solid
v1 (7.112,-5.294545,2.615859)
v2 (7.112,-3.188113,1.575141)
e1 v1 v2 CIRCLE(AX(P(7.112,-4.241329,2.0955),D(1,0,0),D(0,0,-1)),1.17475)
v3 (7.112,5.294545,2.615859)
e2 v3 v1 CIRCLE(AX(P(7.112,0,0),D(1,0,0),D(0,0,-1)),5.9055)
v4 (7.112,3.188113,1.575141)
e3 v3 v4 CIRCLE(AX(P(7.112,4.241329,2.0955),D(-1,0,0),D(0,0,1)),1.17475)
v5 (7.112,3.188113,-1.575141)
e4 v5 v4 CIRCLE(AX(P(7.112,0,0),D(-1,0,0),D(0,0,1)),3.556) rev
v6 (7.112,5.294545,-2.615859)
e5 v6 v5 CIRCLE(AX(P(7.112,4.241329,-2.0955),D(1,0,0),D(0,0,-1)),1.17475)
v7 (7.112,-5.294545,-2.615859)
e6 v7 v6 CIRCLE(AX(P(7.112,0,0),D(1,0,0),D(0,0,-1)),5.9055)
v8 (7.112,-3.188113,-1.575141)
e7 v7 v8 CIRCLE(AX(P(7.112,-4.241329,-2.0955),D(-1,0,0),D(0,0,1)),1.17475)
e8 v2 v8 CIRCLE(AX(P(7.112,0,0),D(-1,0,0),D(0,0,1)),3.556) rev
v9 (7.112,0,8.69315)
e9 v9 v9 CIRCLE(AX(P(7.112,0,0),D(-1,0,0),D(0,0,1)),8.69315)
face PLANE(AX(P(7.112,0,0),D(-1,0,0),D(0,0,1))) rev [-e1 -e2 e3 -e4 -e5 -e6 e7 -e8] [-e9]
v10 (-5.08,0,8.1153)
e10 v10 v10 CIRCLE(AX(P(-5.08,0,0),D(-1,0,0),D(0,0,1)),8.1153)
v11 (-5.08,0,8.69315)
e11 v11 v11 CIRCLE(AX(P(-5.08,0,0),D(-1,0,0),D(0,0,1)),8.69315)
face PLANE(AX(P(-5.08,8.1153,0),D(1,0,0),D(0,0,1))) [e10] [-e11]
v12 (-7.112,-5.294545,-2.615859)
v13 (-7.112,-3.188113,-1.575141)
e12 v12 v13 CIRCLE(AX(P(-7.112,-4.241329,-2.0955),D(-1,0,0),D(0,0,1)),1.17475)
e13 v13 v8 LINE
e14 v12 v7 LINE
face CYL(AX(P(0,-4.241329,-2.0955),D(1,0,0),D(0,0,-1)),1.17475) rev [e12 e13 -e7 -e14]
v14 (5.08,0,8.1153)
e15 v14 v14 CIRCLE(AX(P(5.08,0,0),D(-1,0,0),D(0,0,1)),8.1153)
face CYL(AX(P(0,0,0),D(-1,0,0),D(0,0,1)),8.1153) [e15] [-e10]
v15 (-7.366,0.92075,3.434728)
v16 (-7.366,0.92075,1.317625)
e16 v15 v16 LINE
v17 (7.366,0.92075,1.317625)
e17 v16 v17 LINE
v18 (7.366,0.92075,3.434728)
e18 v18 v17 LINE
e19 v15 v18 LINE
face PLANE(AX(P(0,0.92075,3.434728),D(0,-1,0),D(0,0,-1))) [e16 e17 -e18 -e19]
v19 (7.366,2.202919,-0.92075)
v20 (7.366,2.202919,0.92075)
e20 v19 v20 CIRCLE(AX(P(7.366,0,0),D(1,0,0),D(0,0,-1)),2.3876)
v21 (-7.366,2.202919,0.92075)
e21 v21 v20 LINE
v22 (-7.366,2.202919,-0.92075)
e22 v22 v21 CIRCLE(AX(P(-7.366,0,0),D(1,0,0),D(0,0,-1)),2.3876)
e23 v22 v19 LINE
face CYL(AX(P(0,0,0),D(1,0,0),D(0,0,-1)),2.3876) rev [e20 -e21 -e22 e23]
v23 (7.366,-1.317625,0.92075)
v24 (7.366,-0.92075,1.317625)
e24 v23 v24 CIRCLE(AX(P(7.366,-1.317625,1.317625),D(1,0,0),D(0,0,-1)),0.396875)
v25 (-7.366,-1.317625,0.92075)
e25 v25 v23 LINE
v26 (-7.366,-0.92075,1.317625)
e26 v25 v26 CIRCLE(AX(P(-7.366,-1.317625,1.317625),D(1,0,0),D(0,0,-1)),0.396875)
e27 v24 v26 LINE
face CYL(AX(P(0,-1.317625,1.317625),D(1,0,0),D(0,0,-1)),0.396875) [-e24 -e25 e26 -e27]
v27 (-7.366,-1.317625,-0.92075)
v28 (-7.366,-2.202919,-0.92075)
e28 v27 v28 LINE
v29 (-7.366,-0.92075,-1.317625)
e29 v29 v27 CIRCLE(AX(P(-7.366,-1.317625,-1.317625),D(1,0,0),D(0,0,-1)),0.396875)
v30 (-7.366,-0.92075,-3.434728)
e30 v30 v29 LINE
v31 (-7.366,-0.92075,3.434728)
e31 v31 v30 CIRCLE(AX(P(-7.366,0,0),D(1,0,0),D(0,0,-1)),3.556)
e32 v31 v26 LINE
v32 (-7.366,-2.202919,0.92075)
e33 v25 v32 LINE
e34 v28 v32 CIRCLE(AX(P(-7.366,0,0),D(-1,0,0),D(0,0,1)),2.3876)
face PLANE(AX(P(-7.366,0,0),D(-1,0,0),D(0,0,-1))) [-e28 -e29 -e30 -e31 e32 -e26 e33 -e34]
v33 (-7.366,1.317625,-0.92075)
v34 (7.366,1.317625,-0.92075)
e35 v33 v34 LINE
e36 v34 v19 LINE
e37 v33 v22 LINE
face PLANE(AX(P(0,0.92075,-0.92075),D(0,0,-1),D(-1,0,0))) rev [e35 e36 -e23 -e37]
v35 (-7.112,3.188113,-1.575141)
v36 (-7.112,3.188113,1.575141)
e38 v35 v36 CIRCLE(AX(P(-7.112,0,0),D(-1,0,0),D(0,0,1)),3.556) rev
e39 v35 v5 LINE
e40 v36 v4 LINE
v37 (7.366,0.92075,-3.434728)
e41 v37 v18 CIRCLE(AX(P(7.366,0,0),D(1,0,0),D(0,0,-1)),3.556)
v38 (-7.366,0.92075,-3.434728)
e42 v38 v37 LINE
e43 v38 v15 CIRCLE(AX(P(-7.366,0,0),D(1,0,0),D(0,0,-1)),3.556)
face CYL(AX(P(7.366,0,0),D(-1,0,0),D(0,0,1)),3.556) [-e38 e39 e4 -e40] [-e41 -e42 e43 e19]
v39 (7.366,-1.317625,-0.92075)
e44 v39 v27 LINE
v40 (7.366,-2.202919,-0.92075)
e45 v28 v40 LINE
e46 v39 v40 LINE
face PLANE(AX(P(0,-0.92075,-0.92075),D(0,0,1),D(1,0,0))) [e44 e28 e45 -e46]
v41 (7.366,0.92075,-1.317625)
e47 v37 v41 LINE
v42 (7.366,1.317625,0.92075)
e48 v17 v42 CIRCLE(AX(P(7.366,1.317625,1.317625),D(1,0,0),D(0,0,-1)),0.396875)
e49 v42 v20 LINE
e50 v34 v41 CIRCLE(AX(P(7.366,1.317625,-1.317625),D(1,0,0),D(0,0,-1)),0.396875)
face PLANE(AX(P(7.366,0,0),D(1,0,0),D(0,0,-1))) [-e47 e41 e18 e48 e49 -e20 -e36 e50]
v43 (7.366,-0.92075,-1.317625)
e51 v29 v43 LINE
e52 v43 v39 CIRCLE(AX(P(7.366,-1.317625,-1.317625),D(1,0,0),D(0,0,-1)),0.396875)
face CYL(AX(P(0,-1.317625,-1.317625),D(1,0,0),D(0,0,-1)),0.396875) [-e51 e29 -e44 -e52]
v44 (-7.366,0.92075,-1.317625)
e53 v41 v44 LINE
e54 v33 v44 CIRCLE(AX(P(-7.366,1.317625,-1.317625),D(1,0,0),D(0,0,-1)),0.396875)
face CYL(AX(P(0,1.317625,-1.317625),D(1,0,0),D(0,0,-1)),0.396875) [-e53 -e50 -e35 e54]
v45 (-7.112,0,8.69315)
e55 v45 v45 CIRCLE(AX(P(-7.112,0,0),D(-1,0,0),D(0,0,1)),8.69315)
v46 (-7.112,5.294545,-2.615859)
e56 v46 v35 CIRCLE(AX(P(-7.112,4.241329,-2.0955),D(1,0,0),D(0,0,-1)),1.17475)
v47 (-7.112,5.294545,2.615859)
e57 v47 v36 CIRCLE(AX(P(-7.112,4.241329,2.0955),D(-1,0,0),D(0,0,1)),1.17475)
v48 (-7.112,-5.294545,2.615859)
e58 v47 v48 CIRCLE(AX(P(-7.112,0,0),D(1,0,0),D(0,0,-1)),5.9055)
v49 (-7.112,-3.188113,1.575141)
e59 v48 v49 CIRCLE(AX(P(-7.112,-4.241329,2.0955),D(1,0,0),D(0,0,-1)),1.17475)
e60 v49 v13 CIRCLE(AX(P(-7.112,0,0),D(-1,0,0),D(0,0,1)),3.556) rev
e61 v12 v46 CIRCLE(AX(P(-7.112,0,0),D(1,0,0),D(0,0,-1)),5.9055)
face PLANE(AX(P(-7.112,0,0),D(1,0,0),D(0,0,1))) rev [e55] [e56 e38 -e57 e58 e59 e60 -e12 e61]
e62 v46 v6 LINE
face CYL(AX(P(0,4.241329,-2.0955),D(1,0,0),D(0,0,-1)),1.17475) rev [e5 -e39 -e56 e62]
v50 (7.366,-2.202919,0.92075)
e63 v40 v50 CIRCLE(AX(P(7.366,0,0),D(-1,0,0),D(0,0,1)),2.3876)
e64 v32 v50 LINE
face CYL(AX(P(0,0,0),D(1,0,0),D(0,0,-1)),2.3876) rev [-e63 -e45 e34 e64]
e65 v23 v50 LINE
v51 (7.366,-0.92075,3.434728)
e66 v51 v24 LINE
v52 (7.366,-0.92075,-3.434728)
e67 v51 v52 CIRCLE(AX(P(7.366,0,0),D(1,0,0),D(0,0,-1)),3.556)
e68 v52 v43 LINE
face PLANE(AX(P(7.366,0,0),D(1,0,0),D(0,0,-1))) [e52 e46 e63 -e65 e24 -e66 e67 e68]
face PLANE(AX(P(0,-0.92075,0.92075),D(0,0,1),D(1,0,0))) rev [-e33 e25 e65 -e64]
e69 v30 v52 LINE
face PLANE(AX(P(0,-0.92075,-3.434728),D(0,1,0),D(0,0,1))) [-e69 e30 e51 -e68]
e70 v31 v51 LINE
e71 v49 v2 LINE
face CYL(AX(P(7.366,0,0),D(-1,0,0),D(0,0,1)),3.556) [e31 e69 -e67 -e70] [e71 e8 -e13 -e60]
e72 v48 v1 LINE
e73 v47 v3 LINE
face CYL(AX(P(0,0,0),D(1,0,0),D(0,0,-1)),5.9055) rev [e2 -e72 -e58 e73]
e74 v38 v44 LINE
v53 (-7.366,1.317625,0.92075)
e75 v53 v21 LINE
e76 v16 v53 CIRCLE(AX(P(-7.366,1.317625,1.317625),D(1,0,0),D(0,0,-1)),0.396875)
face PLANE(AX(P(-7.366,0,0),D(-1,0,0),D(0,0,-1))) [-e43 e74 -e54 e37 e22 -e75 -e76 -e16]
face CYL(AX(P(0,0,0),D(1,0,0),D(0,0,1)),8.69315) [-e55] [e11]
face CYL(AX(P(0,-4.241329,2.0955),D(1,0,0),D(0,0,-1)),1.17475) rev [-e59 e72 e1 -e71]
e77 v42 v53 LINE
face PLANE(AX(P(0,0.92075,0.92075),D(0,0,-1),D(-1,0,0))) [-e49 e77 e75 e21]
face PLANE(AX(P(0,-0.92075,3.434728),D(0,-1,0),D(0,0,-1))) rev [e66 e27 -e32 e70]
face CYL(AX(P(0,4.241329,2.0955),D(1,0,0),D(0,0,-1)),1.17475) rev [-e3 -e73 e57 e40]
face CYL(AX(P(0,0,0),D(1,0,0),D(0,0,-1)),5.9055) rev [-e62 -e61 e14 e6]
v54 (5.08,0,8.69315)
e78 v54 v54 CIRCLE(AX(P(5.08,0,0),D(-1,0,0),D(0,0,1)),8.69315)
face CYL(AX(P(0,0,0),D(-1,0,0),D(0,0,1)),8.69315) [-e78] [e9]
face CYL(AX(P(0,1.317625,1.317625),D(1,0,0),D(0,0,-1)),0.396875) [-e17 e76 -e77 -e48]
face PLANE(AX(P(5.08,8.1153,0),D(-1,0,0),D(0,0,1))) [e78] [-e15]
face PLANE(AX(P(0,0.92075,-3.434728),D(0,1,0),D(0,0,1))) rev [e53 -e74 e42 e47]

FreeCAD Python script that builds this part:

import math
import FreeCAD as App
import Part
import Sketcher

V = App.Vector
Q = App.Units.Quantity


def edges_at(feature, points):
    """Names of the edges that pass closest to the given points."""
    edges = feature.Shape.Edges
    near = lambda p: min(range(len(edges)), key=lambda i: edges[i].distToShape(Part.Vertex(*p))[0])
    return sorted({f"Edge{near(p) + 1}" for p in points})


def add_polygon(sketch, points):
    """Adds a closed chain of lines whose ends are joined by coincident constraints."""
    first, n = sketch.GeometryCount, len(points)
    for a, b in zip(points, points[1:] + points[:1]):
        sketch.addGeometry(Part.LineSegment(App.Vector(*a, 0), App.Vector(*b, 0)), False)
    for i in range(n):
        sketch.addConstraint(Sketcher.Constraint("Coincident", first + i, 2, first + (i + 1) % n, 1))

doc = App.newDocument("Part")
body = doc.addObject("PartDesign::Body", "Body")

# Sketch on XY plane
sketch1 = doc.addObject("Sketcher::SketchObject", "Sketch")
body.addObject(sketch1)
sketch1.AttachmentSupport = (doc.XY_Plane, [""])
sketch1.MapMode = "FlatFace"
add_polygon(sketch1, [(7.1, 0), (7.1, 8.7), (5.1, 8.7), (5.1, 8.1), (0, 8.1), (0, 0)])  # lines 0-5
sketch1.addConstraint([
    Sketcher.Constraint("Vertical", 0),
    Sketcher.Constraint("Horizontal", 1),
    Sketcher.Constraint("Vertical", 2),
    Sketcher.Constraint("Horizontal", 3),
    Sketcher.Constraint("Vertical", 4),
    Sketcher.Constraint("Horizontal", 5),
    Sketcher.Constraint("Coincident", 4, 2, -1, 1),
    Sketcher.Constraint("DistanceX", 3, 2, 3, 1, Q("0.2 in")),
    Sketcher.Constraint("DistanceX", 1, 2, 1, 1, Q("0.08 in")),
    Sketcher.Constraint("DistanceY", 4, 2, 4, 1, Q("0.3195 in")),
    Sketcher.Constraint("DistanceY", 0, 1, 0, 2, 8.69315),
])
revolution = doc.addObject("PartDesign::Revolution", "Revolution")
body.addObject(revolution)
revolution.Profile = sketch1
revolution.ReferenceAxis = (sketch1, ["H_Axis"])
revolution.Angle = 360

# Sketch on YZ plane
sketch2 = doc.addObject("Sketcher::SketchObject", "Sketch001")
body.addObject(sketch2)
sketch2.AttachmentSupport = (doc.YZ_Plane, [""])
sketch2.MapMode = "FlatFace"
sketch2.AttachmentOffset = App.Placement(V(0, 0, 0.28 * 25.4), App.Rotation())
sketch2.addGeometry(Part.Circle(V(0, 0, 0), V(0, 0, 1), 3.6), False)
sketch2.addConstraint([
    Sketcher.Constraint("Coincident", 0, 3, -1, 1),
    Sketcher.Constraint("Diameter", 0, Q("0.28 in")),
])
pad1 = doc.addObject("PartDesign::Pad", "Pad")
body.addObject(pad1)
pad1.Profile = sketch2
pad1.Length = Q("0.01 in")

# Sketch on YZ plane
sketch3 = doc.addObject("Sketcher::SketchObject", "Sketch002")
body.addObject(sketch3)
sketch3.AttachmentSupport = (doc.YZ_Plane, [""])
sketch3.MapMode = "FlatFace"
sketch3.AttachmentOffset = App.Placement(V(0, 0, 0.28 * 25.4), App.Rotation())
sketch3.addGeometry([
    Part.ArcOfCircle(Part.Circle(V(0, 0, 0), V(0, 0, 1), 5.9), math.radians(-154), math.radians(-26)),  # 0
    Part.ArcOfCircle(Part.Circle(V(4.2, -2.1, 0), V(0, 0, 1), 1.2), math.radians(-26), math.radians(154)),  # 1
    Part.ArcOfCircle(Part.Circle(V(0, 0, 0), V(0, 0, 1), 3.6), math.radians(-154), math.radians(-26)),  # 2
    Part.ArcOfCircle(Part.Circle(V(-4.2, -2.1, 0), V(0, 0, 1), 1.2), math.radians(26), math.radians(206)),  # 3
    Part.ArcOfCircle(Part.Circle(V(-4.2, 2.1, 0), V(0, 0, 1), 1.2), math.radians(154), math.radians(334)),  # 4
    Part.ArcOfCircle(Part.Circle(V(0, 0, 0), V(0, 0, 1), 3.6), math.radians(26), math.radians(154)),  # 5
    Part.ArcOfCircle(Part.Circle(V(4.2, 2.1, 0), V(0, 0, 1), 1.2), math.radians(-154), math.radians(26)),  # 6
    Part.ArcOfCircle(Part.Circle(V(0, 0, 0), V(0, 0, 1), 5.9), math.radians(26), math.radians(154)),  # 7
], False)
sketch3.addConstraint([
    Sketcher.Constraint("Tangent", 0, 2, 1, 1),
    Sketcher.Constraint("Tangent", 1, 2, 2, 2),
    Sketcher.Constraint("Tangent", 2, 1, 3, 1),
    Sketcher.Constraint("Tangent", 3, 2, 0, 1),
    Sketcher.Constraint("Tangent", 4, 2, 5, 2),
    Sketcher.Constraint("Tangent", 5, 1, 6, 1),
    Sketcher.Constraint("Tangent", 6, 2, 7, 1),
    Sketcher.Constraint("Tangent", 7, 2, 4, 1),
    Sketcher.Constraint("Coincident", 0, 3, -1, 1),
    Sketcher.Constraint("Coincident", 2, 3, -1, 1),
    Sketcher.Constraint("Coincident", 5, 3, -1, 1),
    Sketcher.Constraint("Coincident", 7, 3, -1, 1),
    Sketcher.Constraint("Equal", 3, 4),
    Sketcher.Constraint("Equal", 2, 5),
    Sketcher.Constraint("Horizontal", 1, 3, 3, 3),
    Sketcher.Constraint("Horizontal", 4, 3, 6, 3),
    Sketcher.Constraint("Vertical", 3, 3, 4, 3),
    Sketcher.Constraint("Radius", 2, Q("0.14 in")),
    Sketcher.Constraint("Radius", 0, Q("0.2325 in")),
    Sketcher.Constraint("DistanceY", 3, 3, 4, 3, Q("0.165 in")),
])
pocket1 = doc.addObject("PartDesign::Pocket", "Pocket")
body.addObject(pocket1)
pocket1.Profile = sketch3
pocket1.Type = "ThroughAll"

# Sketch on YZ plane
sketch4 = doc.addObject("Sketcher::SketchObject", "Sketch003")
body.addObject(sketch4)
sketch4.AttachmentSupport = (doc.YZ_Plane, [""])
sketch4.MapMode = "FlatFace"
sketch4.AttachmentOffset = App.Placement(V(0, 0, 0.29 * 25.4), App.Rotation())
sketch4.addGeometry([
    Part.LineSegment(V(0.9, -3.4, 0), V(0.9, -0.9, 0)),  # 0
    Part.LineSegment(V(0.9, -0.9, 0), V(2.2, -0.9, 0)),  # 1
    Part.ArcOfCircle(Part.Circle(V(0, 0, 0), V(0, 0, 1), 2.4), math.radians(-23), math.radians(23)),  # 2
    Part.LineSegment(V(2.2, 0.9, 0), V(0.9, 0.9, 0)),  # 3
    Part.LineSegment(V(0.9, 0.9, 0), V(0.9, 3.4, 0)),  # 4
    Part.ArcOfCircle(Part.Circle(V(0, 0, 0), V(0, 0, 1), 3.6), math.radians(75), math.radians(105)),  # 5
    Part.LineSegment(V(-0.9, 3.4, 0), V(-0.9, 0.9, 0)),  # 6
    Part.LineSegment(V(-0.9, 0.9, 0), V(-2.2, 0.9, 0)),  # 7
    Part.ArcOfCircle(Part.Circle(V(0, 0, 0), V(0, 0, 1), 2.4), math.radians(157), math.radians(203)),  # 8
    Part.LineSegment(V(-2.2, -0.9, 0), V(-0.9, -0.9, 0)),  # 9
    Part.LineSegment(V(-0.9, -0.9, 0), V(-0.9, -3.4, 0)),  # 10
    Part.ArcOfCircle(Part.Circle(V(0, 0, 0), V(0, 0, 1), 3.6), math.radians(-105), math.radians(-75)),  # 11
], False)
sketch4.addConstraint([
    Sketcher.Constraint("Coincident", 0, 2, 1, 1),
    Sketcher.Constraint("Coincident", 1, 2, 2, 1),
    Sketcher.Constraint("Coincident", 2, 2, 3, 1),
    Sketcher.Constraint("Coincident", 3, 2, 4, 1),
    Sketcher.Constraint("Coincident", 4, 2, 5, 1),
    Sketcher.Constraint("Coincident", 5, 2, 6, 1),
    Sketcher.Constraint("Coincident", 6, 2, 7, 1),
    Sketcher.Constraint("Coincident", 7, 2, 8, 1),
    Sketcher.Constraint("Coincident", 8, 2, 9, 1),
    Sketcher.Constraint("Coincident", 9, 2, 10, 1),
    Sketcher.Constraint("Coincident", 10, 2, 11, 1),
    Sketcher.Constraint("Coincident", 11, 2, 0, 1),
    Sketcher.Constraint("Vertical", 0),
    Sketcher.Constraint("Horizontal", 1),
    Sketcher.Constraint("Horizontal", 3),
    Sketcher.Constraint("Vertical", 4),
    Sketcher.Constraint("Vertical", 6),
    Sketcher.Constraint("Horizontal", 7),
    Sketcher.Constraint("Horizontal", 9),
    Sketcher.Constraint("Vertical", 10),
    Sketcher.Constraint("Coincident", 2, 3, -1, 1),
    Sketcher.Constraint("Coincident", 5, 3, -1, 1),
    Sketcher.Constraint("Coincident", 8, 3, -1, 1),
    Sketcher.Constraint("Coincident", 11, 3, -1, 1),
    Sketcher.Constraint("Equal", 2, 8),
    Sketcher.Constraint("Equal", 5, 11),
    Sketcher.Constraint("Symmetric", 0, 2, 6, 2, -1, 1),
    Sketcher.Constraint("Symmetric", 3, 2, 9, 2, -1, 1),
    Sketcher.Constraint("Symmetric", 3, 2, 6, 2, -2),
    Sketcher.Constraint("Radius", 5, Q("0.14 in")),
    Sketcher.Constraint("Radius", 2, Q("0.094 in")),
    Sketcher.Constraint("DistanceY", 1, 2, 2, 2, Q("0.0725 in")),
    Sketcher.Constraint("DistanceX", 5, 2, 4, 2, Q("0.0725 in")),
])
pocket2 = doc.addObject("PartDesign::Pocket", "Pocket001")
body.addObject(pocket2)
pocket2.Profile = sketch4
pocket2.Type = "ThroughAll"
doc.recompute()

fillet = doc.addObject("PartDesign::Fillet", "Fillet")
body.addObject(fillet)
fillet.Base = (pocket2, edges_at(pocket2, [
    (3.683, -0.921, -0.921),
    (3.683, -0.921, 0.921),
    (3.683, 0.921, 0.921),
    (3.683, 0.921, -0.921),
]))
fillet.Radius = Q("0.015625 in")
body2 = doc.addObject("PartDesign::Body", "Body001")
doc.recompute()

body2.BaseFeature = body
doc.recompute()

mirroring = doc.addObject("Part::Mirroring", "Mirroring")
mirroring.Source = body
mirroring.Base = V(0, 0, 0)
mirroring.Normal = V(-1, 0, 0)
body3 = doc.addObject("PartDesign::Body", "Body002")
body3.BaseFeature = mirroring
boolean = doc.addObject("PartDesign::Boolean", "Boolean")
body2.addObject(boolean)
boolean.Type = "Fuse"
boolean.addObjects([body3])
doc.recompute()
mirroring.Visibility = False

doc.recompute()
